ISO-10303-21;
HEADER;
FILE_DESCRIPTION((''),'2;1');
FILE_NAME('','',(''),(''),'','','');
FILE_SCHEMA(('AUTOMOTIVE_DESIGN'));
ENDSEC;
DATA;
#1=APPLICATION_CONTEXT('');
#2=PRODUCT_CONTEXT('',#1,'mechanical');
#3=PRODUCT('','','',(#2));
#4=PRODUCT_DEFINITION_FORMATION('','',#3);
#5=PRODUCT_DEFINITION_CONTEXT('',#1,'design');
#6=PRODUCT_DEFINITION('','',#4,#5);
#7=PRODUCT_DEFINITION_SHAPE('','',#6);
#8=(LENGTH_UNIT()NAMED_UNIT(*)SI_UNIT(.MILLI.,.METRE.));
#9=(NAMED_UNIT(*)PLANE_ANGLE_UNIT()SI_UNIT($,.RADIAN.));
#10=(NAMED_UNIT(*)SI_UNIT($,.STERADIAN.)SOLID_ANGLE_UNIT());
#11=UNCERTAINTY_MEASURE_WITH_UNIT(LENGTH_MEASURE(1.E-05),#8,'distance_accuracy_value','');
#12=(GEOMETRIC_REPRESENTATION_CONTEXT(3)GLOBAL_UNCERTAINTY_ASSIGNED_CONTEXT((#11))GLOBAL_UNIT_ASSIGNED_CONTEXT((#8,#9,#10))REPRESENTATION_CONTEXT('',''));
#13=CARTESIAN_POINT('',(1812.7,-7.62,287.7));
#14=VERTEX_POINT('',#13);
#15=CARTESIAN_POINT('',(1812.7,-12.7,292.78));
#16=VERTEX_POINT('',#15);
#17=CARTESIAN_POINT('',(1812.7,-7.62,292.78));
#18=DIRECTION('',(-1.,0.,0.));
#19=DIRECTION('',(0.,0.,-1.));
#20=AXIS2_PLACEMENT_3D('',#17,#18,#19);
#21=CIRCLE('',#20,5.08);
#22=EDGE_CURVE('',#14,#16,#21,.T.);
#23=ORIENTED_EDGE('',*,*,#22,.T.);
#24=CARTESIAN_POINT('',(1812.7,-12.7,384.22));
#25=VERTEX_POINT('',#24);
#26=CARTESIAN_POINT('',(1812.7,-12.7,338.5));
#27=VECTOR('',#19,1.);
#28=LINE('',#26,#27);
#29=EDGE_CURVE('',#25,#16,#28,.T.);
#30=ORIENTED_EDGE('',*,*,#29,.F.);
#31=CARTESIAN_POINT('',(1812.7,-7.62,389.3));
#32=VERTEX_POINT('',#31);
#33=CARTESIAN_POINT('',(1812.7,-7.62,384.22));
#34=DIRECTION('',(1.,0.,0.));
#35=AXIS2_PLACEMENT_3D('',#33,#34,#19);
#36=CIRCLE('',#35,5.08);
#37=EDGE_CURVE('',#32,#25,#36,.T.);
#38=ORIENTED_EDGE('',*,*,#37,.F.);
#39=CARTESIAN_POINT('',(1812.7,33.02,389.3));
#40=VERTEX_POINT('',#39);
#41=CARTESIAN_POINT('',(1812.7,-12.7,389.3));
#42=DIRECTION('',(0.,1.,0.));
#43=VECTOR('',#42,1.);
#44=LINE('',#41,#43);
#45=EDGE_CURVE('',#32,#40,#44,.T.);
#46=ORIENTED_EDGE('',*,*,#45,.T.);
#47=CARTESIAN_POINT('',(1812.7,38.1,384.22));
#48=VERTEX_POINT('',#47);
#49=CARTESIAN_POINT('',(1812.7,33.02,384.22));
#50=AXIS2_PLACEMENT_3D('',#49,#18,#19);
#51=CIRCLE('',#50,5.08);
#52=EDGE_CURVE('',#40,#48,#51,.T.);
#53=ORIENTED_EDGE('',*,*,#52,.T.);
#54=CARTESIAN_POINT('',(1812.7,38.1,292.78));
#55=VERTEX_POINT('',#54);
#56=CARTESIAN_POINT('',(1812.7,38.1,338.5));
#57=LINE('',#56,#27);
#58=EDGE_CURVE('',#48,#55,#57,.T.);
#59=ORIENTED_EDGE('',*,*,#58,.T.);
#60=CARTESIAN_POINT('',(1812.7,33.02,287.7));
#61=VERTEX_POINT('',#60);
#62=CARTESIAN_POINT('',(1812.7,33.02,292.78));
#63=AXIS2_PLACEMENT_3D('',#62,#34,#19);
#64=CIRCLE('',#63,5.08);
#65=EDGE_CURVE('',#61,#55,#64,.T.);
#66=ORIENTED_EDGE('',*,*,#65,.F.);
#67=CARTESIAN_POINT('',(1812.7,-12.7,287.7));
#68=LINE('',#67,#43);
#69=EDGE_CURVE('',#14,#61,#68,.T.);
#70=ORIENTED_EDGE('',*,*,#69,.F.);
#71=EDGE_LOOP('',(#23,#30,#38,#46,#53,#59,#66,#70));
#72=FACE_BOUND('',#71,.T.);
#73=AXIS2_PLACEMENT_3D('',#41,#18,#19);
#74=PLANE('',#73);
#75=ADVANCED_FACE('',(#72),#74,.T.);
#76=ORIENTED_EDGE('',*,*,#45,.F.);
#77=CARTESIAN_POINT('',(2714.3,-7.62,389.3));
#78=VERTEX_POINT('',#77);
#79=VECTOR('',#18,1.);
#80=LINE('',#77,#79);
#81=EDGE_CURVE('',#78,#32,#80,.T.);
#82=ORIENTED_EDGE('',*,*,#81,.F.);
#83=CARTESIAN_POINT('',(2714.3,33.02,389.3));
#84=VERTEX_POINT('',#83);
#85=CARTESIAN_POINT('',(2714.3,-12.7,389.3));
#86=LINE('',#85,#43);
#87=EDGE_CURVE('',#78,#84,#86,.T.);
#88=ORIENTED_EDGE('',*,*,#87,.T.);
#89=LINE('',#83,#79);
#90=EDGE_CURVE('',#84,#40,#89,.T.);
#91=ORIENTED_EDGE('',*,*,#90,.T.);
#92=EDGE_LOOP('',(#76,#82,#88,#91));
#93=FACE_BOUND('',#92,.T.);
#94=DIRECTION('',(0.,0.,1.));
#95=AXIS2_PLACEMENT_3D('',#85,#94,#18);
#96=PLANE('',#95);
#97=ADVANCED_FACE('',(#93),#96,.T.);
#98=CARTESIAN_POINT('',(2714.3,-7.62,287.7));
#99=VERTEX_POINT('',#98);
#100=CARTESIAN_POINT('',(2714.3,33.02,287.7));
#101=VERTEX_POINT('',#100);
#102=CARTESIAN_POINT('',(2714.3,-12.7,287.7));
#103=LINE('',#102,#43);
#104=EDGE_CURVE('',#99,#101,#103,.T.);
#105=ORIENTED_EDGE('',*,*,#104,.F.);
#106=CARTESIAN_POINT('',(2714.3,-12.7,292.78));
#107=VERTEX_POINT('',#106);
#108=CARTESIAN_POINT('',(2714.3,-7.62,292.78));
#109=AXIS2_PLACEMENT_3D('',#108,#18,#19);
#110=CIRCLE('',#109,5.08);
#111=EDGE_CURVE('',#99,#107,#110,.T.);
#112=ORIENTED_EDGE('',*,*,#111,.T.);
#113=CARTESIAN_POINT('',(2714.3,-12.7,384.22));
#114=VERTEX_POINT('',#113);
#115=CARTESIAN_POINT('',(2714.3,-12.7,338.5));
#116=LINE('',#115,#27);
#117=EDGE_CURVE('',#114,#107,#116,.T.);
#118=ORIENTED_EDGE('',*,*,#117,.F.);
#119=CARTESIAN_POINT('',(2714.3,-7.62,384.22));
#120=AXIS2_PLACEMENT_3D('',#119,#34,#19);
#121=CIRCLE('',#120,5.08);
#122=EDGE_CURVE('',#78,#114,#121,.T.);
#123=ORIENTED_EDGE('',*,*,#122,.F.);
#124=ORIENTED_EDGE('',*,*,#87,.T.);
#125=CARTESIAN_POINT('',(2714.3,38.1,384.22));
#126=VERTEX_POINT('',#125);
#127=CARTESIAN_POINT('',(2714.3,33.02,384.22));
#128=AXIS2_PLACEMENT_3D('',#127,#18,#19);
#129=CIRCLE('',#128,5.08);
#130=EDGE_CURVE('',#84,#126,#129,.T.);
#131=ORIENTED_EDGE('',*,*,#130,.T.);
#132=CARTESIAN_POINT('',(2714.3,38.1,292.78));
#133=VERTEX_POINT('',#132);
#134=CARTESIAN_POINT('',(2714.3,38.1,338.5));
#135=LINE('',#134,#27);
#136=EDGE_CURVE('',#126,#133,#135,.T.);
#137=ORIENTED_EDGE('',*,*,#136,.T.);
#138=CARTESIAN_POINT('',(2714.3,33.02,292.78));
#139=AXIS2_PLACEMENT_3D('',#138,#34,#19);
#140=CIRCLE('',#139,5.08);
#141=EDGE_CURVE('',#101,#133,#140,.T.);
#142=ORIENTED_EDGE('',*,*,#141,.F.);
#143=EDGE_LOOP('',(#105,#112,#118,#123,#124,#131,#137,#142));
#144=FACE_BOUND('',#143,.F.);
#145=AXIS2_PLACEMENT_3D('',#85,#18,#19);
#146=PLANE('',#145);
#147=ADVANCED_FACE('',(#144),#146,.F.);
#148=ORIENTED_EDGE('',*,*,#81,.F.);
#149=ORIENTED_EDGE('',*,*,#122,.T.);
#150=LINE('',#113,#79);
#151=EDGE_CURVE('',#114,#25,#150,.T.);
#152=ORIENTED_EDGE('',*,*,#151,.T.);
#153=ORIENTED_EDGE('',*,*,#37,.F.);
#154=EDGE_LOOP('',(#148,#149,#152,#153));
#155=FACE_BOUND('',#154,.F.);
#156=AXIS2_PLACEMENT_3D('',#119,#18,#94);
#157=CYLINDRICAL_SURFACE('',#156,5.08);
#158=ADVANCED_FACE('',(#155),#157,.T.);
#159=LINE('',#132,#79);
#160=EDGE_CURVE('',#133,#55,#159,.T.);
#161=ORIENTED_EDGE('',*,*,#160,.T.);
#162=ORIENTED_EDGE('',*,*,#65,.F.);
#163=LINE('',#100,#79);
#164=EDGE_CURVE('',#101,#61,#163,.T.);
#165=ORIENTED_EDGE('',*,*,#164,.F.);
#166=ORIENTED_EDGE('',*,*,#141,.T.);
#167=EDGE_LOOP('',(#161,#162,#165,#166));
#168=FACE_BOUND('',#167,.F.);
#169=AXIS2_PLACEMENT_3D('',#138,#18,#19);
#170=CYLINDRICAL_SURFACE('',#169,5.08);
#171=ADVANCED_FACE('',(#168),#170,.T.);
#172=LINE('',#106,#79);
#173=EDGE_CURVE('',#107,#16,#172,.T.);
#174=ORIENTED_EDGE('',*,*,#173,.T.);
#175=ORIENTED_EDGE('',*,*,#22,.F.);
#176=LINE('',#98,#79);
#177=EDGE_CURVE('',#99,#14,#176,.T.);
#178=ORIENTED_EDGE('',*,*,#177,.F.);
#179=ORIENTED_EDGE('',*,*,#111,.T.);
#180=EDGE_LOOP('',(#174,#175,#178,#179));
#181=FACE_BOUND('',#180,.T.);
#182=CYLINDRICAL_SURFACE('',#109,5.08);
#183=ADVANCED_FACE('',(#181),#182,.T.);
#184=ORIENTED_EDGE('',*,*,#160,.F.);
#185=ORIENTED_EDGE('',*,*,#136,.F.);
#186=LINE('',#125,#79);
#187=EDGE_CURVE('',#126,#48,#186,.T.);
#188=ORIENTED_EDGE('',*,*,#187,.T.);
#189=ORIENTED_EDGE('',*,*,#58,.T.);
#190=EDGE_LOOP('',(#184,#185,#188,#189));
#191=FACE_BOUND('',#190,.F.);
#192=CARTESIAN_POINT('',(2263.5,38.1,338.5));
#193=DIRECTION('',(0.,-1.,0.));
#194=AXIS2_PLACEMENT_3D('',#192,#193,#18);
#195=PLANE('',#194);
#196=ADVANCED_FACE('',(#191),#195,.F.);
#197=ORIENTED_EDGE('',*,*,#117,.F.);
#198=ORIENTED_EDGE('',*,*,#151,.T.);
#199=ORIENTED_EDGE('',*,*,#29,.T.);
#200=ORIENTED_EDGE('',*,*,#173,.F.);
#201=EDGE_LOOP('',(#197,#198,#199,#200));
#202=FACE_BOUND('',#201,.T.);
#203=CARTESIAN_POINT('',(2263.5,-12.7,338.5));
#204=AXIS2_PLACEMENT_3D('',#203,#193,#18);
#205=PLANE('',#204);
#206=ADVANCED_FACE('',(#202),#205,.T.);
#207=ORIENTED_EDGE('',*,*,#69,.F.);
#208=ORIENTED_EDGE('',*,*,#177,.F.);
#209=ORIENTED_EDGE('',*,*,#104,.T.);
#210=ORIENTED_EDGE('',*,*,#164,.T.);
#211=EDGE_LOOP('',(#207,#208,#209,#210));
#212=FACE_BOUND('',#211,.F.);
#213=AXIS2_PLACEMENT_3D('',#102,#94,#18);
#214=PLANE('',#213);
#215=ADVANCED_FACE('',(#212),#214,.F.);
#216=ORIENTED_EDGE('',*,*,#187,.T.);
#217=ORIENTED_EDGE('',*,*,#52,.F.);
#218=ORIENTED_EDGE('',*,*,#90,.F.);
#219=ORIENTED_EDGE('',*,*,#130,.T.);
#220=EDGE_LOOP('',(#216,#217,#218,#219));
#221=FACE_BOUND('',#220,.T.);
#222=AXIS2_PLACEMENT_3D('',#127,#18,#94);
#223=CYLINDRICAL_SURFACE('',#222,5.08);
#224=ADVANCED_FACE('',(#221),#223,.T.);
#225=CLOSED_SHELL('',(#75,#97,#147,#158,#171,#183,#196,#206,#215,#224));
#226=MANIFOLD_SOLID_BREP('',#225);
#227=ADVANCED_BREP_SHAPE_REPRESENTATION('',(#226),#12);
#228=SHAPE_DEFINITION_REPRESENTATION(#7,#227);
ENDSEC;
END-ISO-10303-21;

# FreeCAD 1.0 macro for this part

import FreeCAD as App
import Part
import Sketcher
from FreeCAD import Vector
Q = App.Units.Quantity


def edges_at(feature, points):
    """Names of the edges that pass closest to the given points."""
    edges = feature.Shape.Edges
    near = lambda p: min(range(len(edges)), key=lambda i: edges[i].distToShape(Part.Vertex(*p))[0])
    return sorted({f"Edge{near(p) + 1}" for p in points})


def add_polygon(sketch, points):
    """Adds a closed chain of lines whose ends are joined by coincident constraints."""
    first, n = sketch.GeometryCount, len(points)
    for a, b in zip(points, points[1:] + points[:1]):
        sketch.addGeometry(Part.LineSegment(App.Vector(*a, 0), App.Vector(*b, 0)), False)
    for i in range(n):
        sketch.addConstraint(Sketcher.Constraint("Coincident", first + i, 2, first + (i + 1) % n, 1))

doc = App.newDocument("Part")
body = doc.addObject("PartDesign::Body", "Body")

# Sketch on XZ plane
sketch1 = body.newObject("Sketcher::SketchObject", "Sketch")
sketch1.AttachmentSupport = (doc.getObject("XZ_Plane"), [""])
sketch1.MapMode = "FlatFace"
sketch1.AttachmentOffset = App.Placement(Vector(0, 0, 0.5 * 25.4), App.Rotation())
add_polygon(sketch1, [(2714, 288), (2714, 389), (1813, 389), (1813, 288)])  # lines 0-3
sketch1.addConstraint([
    Sketcher.Constraint("Vertical", 0),
    Sketcher.Constraint("Horizontal", 1),
    Sketcher.Constraint("Vertical", 2),
    Sketcher.Constraint("Horizontal", 3),
    Sketcher.Constraint("DistanceY", 0, 1, 0, 2, Q("4 in")),
    Sketcher.Constraint("DistanceX", 1, 2, 1, 1, Q("901.6 mm")),
    Sketcher.Constraint("DistanceX", -1, 1, 0, 2, Q("2714.3 mm")),
    Sketcher.Constraint("DistanceY", -1, 1, 0, 2, Q("389.3 mm")),
])
pad1 = body.newObject("PartDesign::Pad", "Pad")
pad1.Profile = sketch1
pad1.Length = Q("2 in")
pad1.Reversed = True
doc.recompute()

fillet = body.newObject("PartDesign::Fillet", "Fillet")
fillet.Base = (pad1, edges_at(pad1, [
    (2263.5, 38.1, 389.3),
    (2263.5, -12.7, 389.3),
    (2263.5, -12.7, 287.7),
    (2263.5, 38.1, 287.7),
]))
fillet.Radius = Q("0.2 in")

doc.recompute()
